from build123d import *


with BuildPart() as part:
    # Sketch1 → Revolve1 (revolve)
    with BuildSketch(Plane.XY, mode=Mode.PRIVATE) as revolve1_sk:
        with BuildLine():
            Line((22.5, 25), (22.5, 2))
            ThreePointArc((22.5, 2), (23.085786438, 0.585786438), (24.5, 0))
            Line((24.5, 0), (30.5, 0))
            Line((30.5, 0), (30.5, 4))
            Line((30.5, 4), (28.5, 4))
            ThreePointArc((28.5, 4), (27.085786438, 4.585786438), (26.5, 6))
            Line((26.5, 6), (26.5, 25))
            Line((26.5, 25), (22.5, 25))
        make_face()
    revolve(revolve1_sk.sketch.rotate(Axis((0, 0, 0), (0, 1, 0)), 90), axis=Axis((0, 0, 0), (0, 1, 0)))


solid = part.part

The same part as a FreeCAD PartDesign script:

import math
import FreeCAD as App
import Part
import Sketcher
from FreeCAD import Vector

doc = App.newDocument("Part")
body = doc.addObject("PartDesign::Body", "Body")

# Sketch on XY plane
sketch1 = body.newObject("Sketcher::SketchObject", "Sketch")
sketch1.AttachmentSupport = (doc.getObject("XY_Plane"), [""])
sketch1.MapMode = "FlatFace"
sketch1.addGeometry([
    Part.LineSegment(Vector(22.5, 25, 0), Vector(22.5, 2, 0)),  # 0
    Part.ArcOfCircle(Part.Circle(Vector(24.5, 2, 0), Vector(0, 0, 1), 2), math.radians(-180), math.radians(-90)),  # 1
    Part.LineSegment(Vector(24.5, 0, 0), Vector(30.5, 0, 0)),  # 2
    Part.LineSegment(Vector(30.5, 0, 0), Vector(30.5, 4, 0)),  # 3
    Part.LineSegment(Vector(30.5, 4, 0), Vector(28.5, 4, 0)),  # 4
    Part.ArcOfCircle(Part.Circle(Vector(28.5, 6, 0), Vector(0, 0, 1), 2), math.radians(-180), math.radians(-90)),  # 5
    Part.LineSegment(Vector(26.5, 6, 0), Vector(26.5, 25, 0)),  # 6
    Part.LineSegment(Vector(26.5, 25, 0), Vector(22.5, 25, 0)),  # 7
], False)
sketch1.addConstraint([
    Sketcher.Constraint("Tangent", 0, 2, 1, 1),
    Sketcher.Constraint("Tangent", 1, 2, 2, 1),
    Sketcher.Constraint("Coincident", 2, 2, 3, 1),
    Sketcher.Constraint("Coincident", 3, 2, 4, 1),
    Sketcher.Constraint("Tangent", 4, 2, 5, 2),
    Sketcher.Constraint("Tangent", 5, 1, 6, 1),
    Sketcher.Constraint("Coincident", 6, 2, 7, 1),
    Sketcher.Constraint("Coincident", 7, 2, 0, 1),
    Sketcher.Constraint("Vertical", 0),
    Sketcher.Constraint("Horizontal", 2),
    Sketcher.Constraint("Vertical", 3),
    Sketcher.Constraint("Horizontal", 4),
    Sketcher.Constraint("Vertical", 6),
    Sketcher.Constraint("Horizontal", 7),
    Sketcher.Constraint("Equal", 1, 5),
    Sketcher.Constraint("PointOnObject", 1, 2, -1),
    Sketcher.Constraint("Equal", 7, 3),
    Sketcher.Constraint("Radius", 1, 2.0),
    Sketcher.Constraint("DistanceX", 2, 1, 2, 2, 6.0),
    Sketcher.Constraint("DistanceX", 4, 2, 4, 1, 2.0),
    Sketcher.Constraint("DistanceY", 0, 2, 0, 1, 23.0),
    Sketcher.Constraint("DistanceX", -1, 1, 1, 3, 24.5),
])
revolution = body.newObject("PartDesign::Revolution", "Revolution")
revolution.Profile = sketch1
revolution.ReferenceAxis = (sketch1, ["V_Axis"])
revolution.Angle = 360

doc.recompute()
